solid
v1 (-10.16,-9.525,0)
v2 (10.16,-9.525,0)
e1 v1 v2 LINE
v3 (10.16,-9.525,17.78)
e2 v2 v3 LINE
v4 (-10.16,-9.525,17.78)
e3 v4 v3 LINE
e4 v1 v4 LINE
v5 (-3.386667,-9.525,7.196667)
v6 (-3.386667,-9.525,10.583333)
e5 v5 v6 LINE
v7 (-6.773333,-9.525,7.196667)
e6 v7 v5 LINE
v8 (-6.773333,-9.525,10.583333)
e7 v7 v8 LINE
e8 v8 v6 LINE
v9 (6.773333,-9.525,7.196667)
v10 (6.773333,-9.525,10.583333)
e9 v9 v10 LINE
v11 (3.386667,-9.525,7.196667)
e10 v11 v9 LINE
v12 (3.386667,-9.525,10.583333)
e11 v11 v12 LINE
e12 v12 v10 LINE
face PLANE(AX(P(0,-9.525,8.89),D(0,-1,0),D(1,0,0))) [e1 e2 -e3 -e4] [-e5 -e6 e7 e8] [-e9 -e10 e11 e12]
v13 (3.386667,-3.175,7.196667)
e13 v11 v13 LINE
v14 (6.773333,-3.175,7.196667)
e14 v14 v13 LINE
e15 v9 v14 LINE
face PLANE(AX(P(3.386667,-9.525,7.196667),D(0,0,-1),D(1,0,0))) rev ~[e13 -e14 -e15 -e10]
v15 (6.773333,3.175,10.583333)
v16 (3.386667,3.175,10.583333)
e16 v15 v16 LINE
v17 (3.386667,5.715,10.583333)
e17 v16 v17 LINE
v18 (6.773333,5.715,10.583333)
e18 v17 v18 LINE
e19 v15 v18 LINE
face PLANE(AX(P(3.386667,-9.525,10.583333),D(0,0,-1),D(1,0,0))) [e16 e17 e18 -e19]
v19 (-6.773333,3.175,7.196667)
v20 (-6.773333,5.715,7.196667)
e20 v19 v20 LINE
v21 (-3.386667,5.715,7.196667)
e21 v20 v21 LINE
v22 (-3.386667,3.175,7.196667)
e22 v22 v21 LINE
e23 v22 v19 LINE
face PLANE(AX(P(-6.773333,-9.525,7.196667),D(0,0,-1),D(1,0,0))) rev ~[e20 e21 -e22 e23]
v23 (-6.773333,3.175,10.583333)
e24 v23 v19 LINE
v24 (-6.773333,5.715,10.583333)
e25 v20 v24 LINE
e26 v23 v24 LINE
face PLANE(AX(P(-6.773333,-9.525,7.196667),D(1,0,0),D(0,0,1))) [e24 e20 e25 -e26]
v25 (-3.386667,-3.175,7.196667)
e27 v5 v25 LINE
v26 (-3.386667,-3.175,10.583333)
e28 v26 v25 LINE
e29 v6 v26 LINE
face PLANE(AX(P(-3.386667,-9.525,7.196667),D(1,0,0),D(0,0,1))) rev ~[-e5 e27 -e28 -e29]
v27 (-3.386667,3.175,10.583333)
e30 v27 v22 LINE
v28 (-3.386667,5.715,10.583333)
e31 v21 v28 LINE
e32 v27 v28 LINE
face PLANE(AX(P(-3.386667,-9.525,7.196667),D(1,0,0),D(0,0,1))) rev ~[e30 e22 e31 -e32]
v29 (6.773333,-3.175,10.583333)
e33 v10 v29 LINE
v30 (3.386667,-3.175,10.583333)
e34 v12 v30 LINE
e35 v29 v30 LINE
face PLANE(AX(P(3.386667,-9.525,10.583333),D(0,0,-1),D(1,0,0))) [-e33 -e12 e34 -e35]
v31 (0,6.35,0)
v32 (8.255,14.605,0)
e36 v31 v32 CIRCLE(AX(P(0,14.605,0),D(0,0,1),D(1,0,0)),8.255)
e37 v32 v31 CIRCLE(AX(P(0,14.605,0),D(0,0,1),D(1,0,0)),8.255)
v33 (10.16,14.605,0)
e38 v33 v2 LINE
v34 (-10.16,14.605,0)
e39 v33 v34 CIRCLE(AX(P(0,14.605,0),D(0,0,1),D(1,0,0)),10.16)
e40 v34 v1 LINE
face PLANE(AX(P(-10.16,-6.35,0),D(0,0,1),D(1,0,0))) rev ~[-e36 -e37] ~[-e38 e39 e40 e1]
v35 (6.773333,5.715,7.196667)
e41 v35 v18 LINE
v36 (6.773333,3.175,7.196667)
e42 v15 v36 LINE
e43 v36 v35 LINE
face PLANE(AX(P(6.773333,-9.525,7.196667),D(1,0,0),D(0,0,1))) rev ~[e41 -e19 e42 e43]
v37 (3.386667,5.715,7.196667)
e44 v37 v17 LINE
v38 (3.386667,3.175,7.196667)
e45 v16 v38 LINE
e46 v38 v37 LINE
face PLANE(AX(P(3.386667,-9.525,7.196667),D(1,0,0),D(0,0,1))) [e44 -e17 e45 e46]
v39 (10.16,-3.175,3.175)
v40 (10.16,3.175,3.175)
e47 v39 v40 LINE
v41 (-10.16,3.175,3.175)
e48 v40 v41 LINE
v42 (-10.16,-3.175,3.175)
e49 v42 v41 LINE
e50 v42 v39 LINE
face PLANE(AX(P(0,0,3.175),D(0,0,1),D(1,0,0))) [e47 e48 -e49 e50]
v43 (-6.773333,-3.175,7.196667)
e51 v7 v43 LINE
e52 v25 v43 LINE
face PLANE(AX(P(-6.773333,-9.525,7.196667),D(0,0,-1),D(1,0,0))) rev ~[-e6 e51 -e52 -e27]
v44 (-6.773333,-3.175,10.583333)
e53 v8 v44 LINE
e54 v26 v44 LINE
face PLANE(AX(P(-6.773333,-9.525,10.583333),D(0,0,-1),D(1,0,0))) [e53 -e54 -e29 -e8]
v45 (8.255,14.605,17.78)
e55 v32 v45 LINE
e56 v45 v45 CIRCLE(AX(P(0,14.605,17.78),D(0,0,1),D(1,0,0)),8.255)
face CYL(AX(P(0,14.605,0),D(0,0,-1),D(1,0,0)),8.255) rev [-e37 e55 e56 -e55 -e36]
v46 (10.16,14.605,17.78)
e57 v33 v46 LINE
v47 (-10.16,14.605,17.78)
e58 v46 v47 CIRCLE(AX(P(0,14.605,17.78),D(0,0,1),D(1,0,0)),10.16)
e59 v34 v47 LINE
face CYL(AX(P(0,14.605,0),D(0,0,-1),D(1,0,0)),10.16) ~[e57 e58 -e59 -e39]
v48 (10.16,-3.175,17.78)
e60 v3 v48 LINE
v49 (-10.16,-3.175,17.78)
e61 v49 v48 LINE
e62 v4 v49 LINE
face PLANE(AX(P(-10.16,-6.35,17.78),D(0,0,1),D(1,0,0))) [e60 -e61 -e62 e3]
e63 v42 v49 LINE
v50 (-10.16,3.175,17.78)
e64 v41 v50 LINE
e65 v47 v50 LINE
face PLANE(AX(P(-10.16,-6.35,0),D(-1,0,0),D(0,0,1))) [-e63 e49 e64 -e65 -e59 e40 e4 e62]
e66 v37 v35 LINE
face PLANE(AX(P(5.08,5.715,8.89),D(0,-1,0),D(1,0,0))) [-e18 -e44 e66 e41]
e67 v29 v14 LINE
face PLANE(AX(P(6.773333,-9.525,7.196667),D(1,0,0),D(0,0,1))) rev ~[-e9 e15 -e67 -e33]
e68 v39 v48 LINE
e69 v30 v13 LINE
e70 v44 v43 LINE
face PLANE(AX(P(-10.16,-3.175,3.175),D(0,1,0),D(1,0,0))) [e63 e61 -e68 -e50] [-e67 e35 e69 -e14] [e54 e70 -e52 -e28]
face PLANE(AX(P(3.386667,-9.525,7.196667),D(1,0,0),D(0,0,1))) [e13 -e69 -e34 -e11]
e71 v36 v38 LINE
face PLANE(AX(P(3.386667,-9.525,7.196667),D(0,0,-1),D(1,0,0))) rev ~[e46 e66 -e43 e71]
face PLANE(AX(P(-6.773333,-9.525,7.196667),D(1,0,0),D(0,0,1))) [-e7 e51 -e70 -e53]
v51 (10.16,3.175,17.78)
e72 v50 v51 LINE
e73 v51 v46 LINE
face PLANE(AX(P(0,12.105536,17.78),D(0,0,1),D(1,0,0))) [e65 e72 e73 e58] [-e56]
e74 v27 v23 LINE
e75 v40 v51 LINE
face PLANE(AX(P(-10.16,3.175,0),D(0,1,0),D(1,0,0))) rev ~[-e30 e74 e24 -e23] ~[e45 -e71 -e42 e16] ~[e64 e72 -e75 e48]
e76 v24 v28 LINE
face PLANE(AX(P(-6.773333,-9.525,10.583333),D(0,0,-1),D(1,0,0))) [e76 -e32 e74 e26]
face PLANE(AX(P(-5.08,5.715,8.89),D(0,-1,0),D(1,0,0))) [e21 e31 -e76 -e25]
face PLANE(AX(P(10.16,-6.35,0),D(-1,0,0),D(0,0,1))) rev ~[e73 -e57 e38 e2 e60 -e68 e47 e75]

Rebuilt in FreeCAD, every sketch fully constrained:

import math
import FreeCAD as App
import Part
import Sketcher
Q = App.Units.Quantity

doc = App.newDocument("Part")
body = doc.addObject("PartDesign::Body", "Body")

# Sketch on XY plane
sketch1 = body.newObject("Sketcher::SketchObject", "Sketch")
sketch1.AttachmentSupport = (doc.getObject("XY_Plane"), [""])
sketch1.MapMode = "FlatFace"
sketch1.addGeometry([
    Part.LineSegment(App.Vector(-10, 6, 0), App.Vector(-10, -6, 0)),
    Part.LineSegment(App.Vector(-10, -6, 0), App.Vector(10, -6, 0)),
    Part.LineSegment(App.Vector(10, -6, 0), App.Vector(10, 6, 0)),
    Part.LineSegment(App.Vector(10, 6, 0), App.Vector(-10, 6, 0)),
], False)
sketch1.addConstraint([
    Sketcher.Constraint("Coincident", 0, 2, 1, 1),
    Sketcher.Constraint("Coincident", 1, 2, 2, 1),
    Sketcher.Constraint("Coincident", 2, 2, 3, 1),
    Sketcher.Constraint("Coincident", 3, 2, 0, 1),
    Sketcher.Constraint("Vertical", 0),
    Sketcher.Constraint("Horizontal", 1),
    Sketcher.Constraint("Vertical", 2),
    Sketcher.Constraint("Horizontal", 3),
    Sketcher.Constraint("Symmetric", 0, 2, 2, 2, -1, 1),
    Sketcher.Constraint("DistanceX", 1, 1, 1, 2, Q("0.8 in")),
    Sketcher.Constraint("DistanceY", 0, 2, 0, 1, Q("0.5 in")),
])
pad1 = body.newObject("PartDesign::Pad", "Pad")
pad1.Profile = sketch1
pad1.Length = Q("0.125 in")

# Sketch on XY plane
sketch2 = body.newObject("Sketcher::SketchObject", "Sketch001")
sketch2.AttachmentSupport = (doc.getObject("XY_Plane"), [""])
sketch2.MapMode = "FlatFace"
sketch2.AttachmentOffset = App.Placement(App.Vector(0, 0, 0.125 * 25.4), App.Rotation())
sketch2.addGeometry([
    Part.LineSegment(App.Vector(-10.2, -3.2, 0), App.Vector(-10.2, -6.3, 0)),
    Part.LineSegment(App.Vector(-10.2, -6.3, 0), App.Vector(10.2, -6.3, 0)),
    Part.LineSegment(App.Vector(10.2, -6.3, 0), App.Vector(10.2, -3.2, 0)),
    Part.LineSegment(App.Vector(10.2, -3.2, 0), App.Vector(-10.2, -3.2, 0)),
], False)
sketch2.addConstraint([
    Sketcher.Constraint("Coincident", 0, 2, 1, 1),
    Sketcher.Constraint("Coincident", 1, 2, 2, 1),
    Sketcher.Constraint("Coincident", 2, 2, 3, 1),
    Sketcher.Constraint("Coincident", 3, 2, 0, 1),
    Sketcher.Constraint("Vertical", 0),
    Sketcher.Constraint("Horizontal", 1),
    Sketcher.Constraint("Vertical", 2),
    Sketcher.Constraint("Horizontal", 3),
    Sketcher.Constraint("DistanceX", 1, 1, 1, 2, Q("0.8 in")),
    Sketcher.Constraint("DistanceX", 0, 2, -1, 1, Q("0.4 in")),
    Sketcher.Constraint("DistanceY", 0, 2, 0, 1, Q("0.125 in")),
    Sketcher.Constraint("DistanceY", 0, 2, -1, 1, Q("0.25 in")),
])
pad2 = body.newObject("PartDesign::Pad", "Pad001")
pad2.Profile = sketch2
pad2.Length = Q("0.575 in")

# Sketch on XY plane
sketch3 = body.newObject("Sketcher::SketchObject", "Sketch002")
sketch3.AttachmentSupport = (doc.getObject("XY_Plane"), [""])
sketch3.MapMode = "FlatFace"
sketch3.addGeometry([
    Part.LineSegment(App.Vector(10, 3, 0), App.Vector(10, 15, 0)),  # 0
    Part.ArcOfCircle(Part.Circle(App.Vector(0, 15, 0), App.Vector(0, 0, 1), 10), math.radians(0), math.radians(180)),  # 1
    Part.LineSegment(App.Vector(-10, 15, 0), App.Vector(-10, 3, 0)),  # 2
    Part.LineSegment(App.Vector(-10, 3, 0), App.Vector(10, 3, 0)),  # 3
    Part.Circle(App.Vector(0, 15, 0), App.Vector(0, 0, 1), 8),  # 4
], False)
sketch3.addConstraint([
    Sketcher.Constraint("Tangent", 0, 2, 1, 1),
    Sketcher.Constraint("Tangent", 1, 2, 2, 1),
    Sketcher.Constraint("Coincident", 2, 2, 3, 1),
    Sketcher.Constraint("Coincident", 3, 2, 0, 1),
    Sketcher.Constraint("Vertical", 0),
    Sketcher.Constraint("Vertical", 2),
    Sketcher.Constraint("Horizontal", 3),
    Sketcher.Constraint("Coincident", 4, 3, 1, 3),
    Sketcher.Constraint("PointOnObject", 1, 3, -2),
    Sketcher.Constraint("Radius", 1, Q("0.4 in")),
    Sketcher.Constraint("Diameter", 4, Q("0.65 in")),
    Sketcher.Constraint("DistanceY", 0, 1, 0, 2, Q("0.45 in")),
    Sketcher.Constraint("DistanceY", -1, 1, 1, 3, Q("0.575 in")),
])
pad3 = body.newObject("PartDesign::Pad", "Pad002")
pad3.Profile = sketch3
pad3.Length = Q("0.7 in")

# Sketch on XZ plane
sketch4 = body.newObject("Sketcher::SketchObject", "Sketch003")
sketch4.AttachmentSupport = (doc.getObject("XZ_Plane"), [""])
sketch4.MapMode = "FlatFace"
sketch4.AttachmentOffset = App.Placement(App.Vector(0, 0, 0.25 * 25.4), App.Rotation())
sketch4.addGeometry([
    Part.LineSegment(App.Vector(-10, 18, 0), App.Vector(-10, 0, 0)),
    Part.LineSegment(App.Vector(-10, 0, 0), App.Vector(10, 0, 0)),
    Part.LineSegment(App.Vector(10, 0, 0), App.Vector(10, 18, 0)),
    Part.LineSegment(App.Vector(10, 18, 0), App.Vector(-10, 18, 0)),
], False)
sketch4.addConstraint([
    Sketcher.Constraint("Coincident", 0, 2, 1, 1),
    Sketcher.Constraint("Coincident", 1, 2, 2, 1),
    Sketcher.Constraint("Coincident", 2, 2, 3, 1),
    Sketcher.Constraint("Coincident", 3, 2, 0, 1),
    Sketcher.Constraint("Vertical", 0),
    Sketcher.Constraint("Horizontal", 1),
    Sketcher.Constraint("Vertical", 2),
    Sketcher.Constraint("Horizontal", 3),
    Sketcher.Constraint("Symmetric", 0, 2, 1, 2, -1, 1),
    Sketcher.Constraint("DistanceX", 1, 1, 1, 2, Q("0.8 in")),
    Sketcher.Constraint("DistanceY", 0, 2, 0, 1, Q("0.7 in")),
])
pad4 = body.newObject("PartDesign::Pad", "Pad003")
pad4.Profile = sketch4
pad4.Length = Q("0.125 in")

# Sketch on XZ plane
sketch5 = body.newObject("Sketcher::SketchObject", "Sketch004")
sketch5.AttachmentSupport = (doc.getObject("XZ_Plane"), [""])
sketch5.MapMode = "FlatFace"
sketch5.AttachmentOffset = App.Placement(App.Vector(0, 0, 0.375 * 25.4), App.Rotation())
sketch5.addGeometry([
    Part.LineSegment(App.Vector(-6.8, 10.6, 0), App.Vector(-6.8, 7.2, 0)),  # 0
    Part.LineSegment(App.Vector(-6.8, 7.2, 0), App.Vector(-3.4, 7.2, 0)),  # 1
    Part.LineSegment(App.Vector(-3.4, 7.2, 0), App.Vector(-3.4, 10.6, 0)),  # 2
    Part.LineSegment(App.Vector(-3.4, 10.6, 0), App.Vector(-6.8, 10.6, 0)),  # 3
    Part.LineSegment(App.Vector(3.4, 10.6, 0), App.Vector(3.4, 7.2, 0)),  # 4
    Part.LineSegment(App.Vector(3.4, 7.2, 0), App.Vector(6.8, 7.2, 0)),  # 5
    Part.LineSegment(App.Vector(6.8, 7.2, 0), App.Vector(6.8, 10.6, 0)),  # 6
    Part.LineSegment(App.Vector(6.8, 10.6, 0), App.Vector(3.4, 10.6, 0)),  # 7
], False)
sketch5.addConstraint([
    Sketcher.Constraint("Coincident", 0, 2, 1, 1),
    Sketcher.Constraint("Coincident", 1, 2, 2, 1),
    Sketcher.Constraint("Coincident", 2, 2, 3, 1),
    Sketcher.Constraint("Coincident", 3, 2, 0, 1),
    Sketcher.Constraint("Coincident", 4, 2, 5, 1),
    Sketcher.Constraint("Coincident", 5, 2, 6, 1),
    Sketcher.Constraint("Coincident", 6, 2, 7, 1),
    Sketcher.Constraint("Coincident", 7, 2, 4, 1),
    Sketcher.Constraint("Vertical", 0),
    Sketcher.Constraint("Horizontal", 1),
    Sketcher.Constraint("Vertical", 2),
    Sketcher.Constraint("Horizontal", 3),
    Sketcher.Constraint("Vertical", 4),
    Sketcher.Constraint("Horizontal", 5),
    Sketcher.Constraint("Vertical", 6),
    Sketcher.Constraint("Horizontal", 7),
    Sketcher.Constraint("Symmetric", 1, 2, 4, 2, -2),
    Sketcher.Constraint("Symmetric", 3, 2, 6, 2, -2),
    Sketcher.Constraint("Equal", 7, 0),
    Sketcher.Constraint("DistanceX", 0, 2, 4, 2, Q("0.4 in")),
    Sketcher.Constraint("DistanceX", 1, 1, 1, 2, 3.386666),
    Sketcher.Constraint("DistanceY", -1, 1, 0, 2, 7.196667),
])
pocket1 = body.newObject("PartDesign::Pocket", "Pocket")
pocket1.Profile = sketch5
pocket1.Length = Q("0.6 in")

doc.recompute()
